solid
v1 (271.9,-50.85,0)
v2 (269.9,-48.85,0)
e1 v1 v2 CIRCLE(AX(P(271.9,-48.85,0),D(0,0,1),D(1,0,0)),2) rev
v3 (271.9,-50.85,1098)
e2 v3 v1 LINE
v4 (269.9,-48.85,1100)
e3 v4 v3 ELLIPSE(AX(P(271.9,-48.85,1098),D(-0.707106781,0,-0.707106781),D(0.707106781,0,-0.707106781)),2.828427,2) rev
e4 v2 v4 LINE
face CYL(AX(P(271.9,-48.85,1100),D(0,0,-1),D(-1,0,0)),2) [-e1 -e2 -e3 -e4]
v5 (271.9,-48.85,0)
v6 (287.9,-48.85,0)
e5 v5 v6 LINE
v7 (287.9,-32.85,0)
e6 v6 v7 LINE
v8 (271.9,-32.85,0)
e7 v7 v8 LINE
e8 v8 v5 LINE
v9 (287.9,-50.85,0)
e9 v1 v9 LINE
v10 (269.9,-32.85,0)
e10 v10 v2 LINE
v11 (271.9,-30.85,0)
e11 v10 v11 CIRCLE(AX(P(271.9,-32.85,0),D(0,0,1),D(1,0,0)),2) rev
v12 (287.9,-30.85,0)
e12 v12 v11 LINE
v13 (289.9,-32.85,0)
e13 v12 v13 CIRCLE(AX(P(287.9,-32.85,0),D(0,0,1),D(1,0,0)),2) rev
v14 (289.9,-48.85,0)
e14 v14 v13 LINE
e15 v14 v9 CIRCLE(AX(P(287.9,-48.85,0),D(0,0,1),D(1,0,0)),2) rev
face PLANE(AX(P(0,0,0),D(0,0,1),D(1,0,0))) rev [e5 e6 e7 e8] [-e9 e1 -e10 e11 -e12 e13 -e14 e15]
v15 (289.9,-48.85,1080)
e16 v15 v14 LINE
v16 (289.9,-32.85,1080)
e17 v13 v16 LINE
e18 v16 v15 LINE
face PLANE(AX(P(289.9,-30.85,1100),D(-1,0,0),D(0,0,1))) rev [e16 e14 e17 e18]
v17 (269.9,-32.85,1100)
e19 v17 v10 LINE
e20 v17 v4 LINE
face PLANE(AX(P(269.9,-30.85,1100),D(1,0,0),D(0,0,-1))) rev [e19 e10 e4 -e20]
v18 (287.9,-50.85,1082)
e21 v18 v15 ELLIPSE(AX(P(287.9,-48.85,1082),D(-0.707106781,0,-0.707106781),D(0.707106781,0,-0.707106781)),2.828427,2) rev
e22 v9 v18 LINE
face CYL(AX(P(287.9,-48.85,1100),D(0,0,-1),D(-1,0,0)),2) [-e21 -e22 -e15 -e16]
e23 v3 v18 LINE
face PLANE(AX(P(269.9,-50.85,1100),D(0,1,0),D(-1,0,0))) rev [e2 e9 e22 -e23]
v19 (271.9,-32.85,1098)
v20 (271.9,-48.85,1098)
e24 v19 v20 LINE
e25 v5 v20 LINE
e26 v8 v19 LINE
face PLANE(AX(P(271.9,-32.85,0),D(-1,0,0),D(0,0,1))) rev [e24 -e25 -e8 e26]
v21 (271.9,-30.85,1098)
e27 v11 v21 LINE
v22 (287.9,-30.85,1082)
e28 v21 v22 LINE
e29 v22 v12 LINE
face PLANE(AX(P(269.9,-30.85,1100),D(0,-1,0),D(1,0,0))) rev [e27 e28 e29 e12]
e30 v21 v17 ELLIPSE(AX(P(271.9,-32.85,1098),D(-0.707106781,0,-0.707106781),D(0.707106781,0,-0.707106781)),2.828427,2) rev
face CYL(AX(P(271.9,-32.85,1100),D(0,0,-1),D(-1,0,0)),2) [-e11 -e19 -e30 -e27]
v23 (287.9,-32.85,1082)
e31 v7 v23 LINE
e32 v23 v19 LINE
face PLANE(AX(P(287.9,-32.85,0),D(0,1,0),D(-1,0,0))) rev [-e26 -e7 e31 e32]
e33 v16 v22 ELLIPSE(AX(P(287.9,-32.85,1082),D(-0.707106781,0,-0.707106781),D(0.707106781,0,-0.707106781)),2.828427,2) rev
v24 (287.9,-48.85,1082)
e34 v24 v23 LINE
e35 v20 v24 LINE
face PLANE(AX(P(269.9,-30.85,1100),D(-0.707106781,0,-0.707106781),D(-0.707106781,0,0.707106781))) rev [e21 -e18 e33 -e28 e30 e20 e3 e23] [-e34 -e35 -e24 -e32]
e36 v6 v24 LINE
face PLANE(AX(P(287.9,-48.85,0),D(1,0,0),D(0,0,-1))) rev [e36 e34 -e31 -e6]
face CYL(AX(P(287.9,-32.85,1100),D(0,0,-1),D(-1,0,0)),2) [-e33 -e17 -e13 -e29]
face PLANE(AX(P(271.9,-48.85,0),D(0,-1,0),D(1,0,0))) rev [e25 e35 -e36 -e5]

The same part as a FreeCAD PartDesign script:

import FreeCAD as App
import Part
import Sketcher
Q = App.Units.Quantity


def edges_at(feature, points):
    """Names of the edges that pass closest to the given points."""
    edges = feature.Shape.Edges
    near = lambda p: min(range(len(edges)), key=lambda i: edges[i].distToShape(Part.Vertex(*p))[0])
    return sorted({f"Edge{near(p) + 1}" for p in points})


def add_polygon(sketch, points):
    """Adds a closed chain of lines whose ends are joined by coincident constraints."""
    first, n = sketch.GeometryCount, len(points)
    for a, b in zip(points, points[1:] + points[:1]):
        sketch.addGeometry(Part.LineSegment(App.Vector(*a, 0), App.Vector(*b, 0)), False)
    for i in range(n):
        sketch.addConstraint(Sketcher.Constraint("Coincident", first + i, 2, first + (i + 1) % n, 1))

doc = App.newDocument("Part")
body = doc.addObject("PartDesign::Body", "Body")

sketch1 = body.newObject("Sketcher::SketchObject", "Sketch")
sketch1.AttachmentSupport = (doc.getObject("XY_Plane"), [""])
sketch1.MapMode = "FlatFace"
add_polygon(sketch1, [(270, -31), (270, -51), (290, -51), (290, -31)])
sketch1.addConstraint([
    Sketcher.Constraint("Vertical", 0),
    Sketcher.Constraint("Horizontal", 1),
    Sketcher.Constraint("Vertical", 2),
    Sketcher.Constraint("Horizontal", 3),
    Sketcher.Constraint("Equal", 3, 0),
    Sketcher.Constraint("DistanceX", 1, 1, 1, 2, Q("20 mm")),
    Sketcher.Constraint("DistanceX", -1, 1, 0, 2, Q("269.9 mm")),
    Sketcher.Constraint("DistanceY", 0, 2, -1, 1, Q("50.85 mm")),
])
pad1 = body.newObject("PartDesign::Pad", "Pad")
pad1.Profile = sketch1
pad1.Length = 1100
doc.recompute()

fillet = body.newObject("PartDesign::Fillet", "Fillet")
fillet.Base = (pad1, edges_at(pad1, [
    (269.9, -30.85, 550),
    (289.9, -30.85, 550),
    (289.9, -50.85, 550),
    (269.9, -50.85, 550),
]))
fillet.Radius = 2

sketch2 = body.newObject("Sketcher::SketchObject", "Sketch001")
sketch2.AttachmentSupport = (doc.getObject("XY_Plane"), [""])
sketch2.MapMode = "FlatFace"
sketch2.AttachmentOffset = App.Placement(App.Vector(0, 0, 1100), App.Rotation())
add_polygon(sketch2, [(272, -33), (272, -49), (288, -49), (288, -33)])
sketch2.addConstraint([
    Sketcher.Constraint("Vertical", 0),
    Sketcher.Constraint("Horizontal", 1),
    Sketcher.Constraint("Vertical", 2),
    Sketcher.Constraint("Horizontal", 3),
    Sketcher.Constraint("Equal", 3, 0),
    Sketcher.Constraint("DistanceX", 1, 1, 1, 2, Q("16 mm")),
    Sketcher.Constraint("DistanceX", -1, 1, 0, 2, Q("271.9 mm")),
    Sketcher.Constraint("DistanceY", 0, 2, -1, 1, Q("48.85 mm")),
])
pocket1 = body.newObject("PartDesign::Pocket", "Pocket")
pocket1.Profile = sketch2
pocket1.Type = "ThroughAll"

sketch3 = body.newObject("Sketcher::SketchObject", "Sketch002")
sketch3.AttachmentSupport = (doc.getObject("XZ_Plane"), [""])
sketch3.MapMode = "FlatFace"
sketch3.AttachmentOffset = App.Placement(App.Vector(0, 0, 50.85), App.Rotation())
add_polygon(sketch3, [(270, 1100), (290, 1080), (290, 1100)])
sketch3.addConstraint([
    Sketcher.Constraint("Vertical", 1),
    Sketcher.Constraint("Horizontal", 2),
    Sketcher.Constraint("Equal", 2, 1),
    Sketcher.Constraint("DistanceX", 2, 2, 2, 1, Q("20 mm")),
    Sketcher.Constraint("DistanceY", -1, 1, 0, 2, Q("1080 mm")),
    Sketcher.Constraint("DistanceX", -1, 1, 0, 2, Q("289.9 mm")),
])
pocket2 = body.newObject("PartDesign::Pocket", "Pocket001")
pocket2.Profile = sketch3
pocket2.Type = "ThroughAll"

doc.recompute()
